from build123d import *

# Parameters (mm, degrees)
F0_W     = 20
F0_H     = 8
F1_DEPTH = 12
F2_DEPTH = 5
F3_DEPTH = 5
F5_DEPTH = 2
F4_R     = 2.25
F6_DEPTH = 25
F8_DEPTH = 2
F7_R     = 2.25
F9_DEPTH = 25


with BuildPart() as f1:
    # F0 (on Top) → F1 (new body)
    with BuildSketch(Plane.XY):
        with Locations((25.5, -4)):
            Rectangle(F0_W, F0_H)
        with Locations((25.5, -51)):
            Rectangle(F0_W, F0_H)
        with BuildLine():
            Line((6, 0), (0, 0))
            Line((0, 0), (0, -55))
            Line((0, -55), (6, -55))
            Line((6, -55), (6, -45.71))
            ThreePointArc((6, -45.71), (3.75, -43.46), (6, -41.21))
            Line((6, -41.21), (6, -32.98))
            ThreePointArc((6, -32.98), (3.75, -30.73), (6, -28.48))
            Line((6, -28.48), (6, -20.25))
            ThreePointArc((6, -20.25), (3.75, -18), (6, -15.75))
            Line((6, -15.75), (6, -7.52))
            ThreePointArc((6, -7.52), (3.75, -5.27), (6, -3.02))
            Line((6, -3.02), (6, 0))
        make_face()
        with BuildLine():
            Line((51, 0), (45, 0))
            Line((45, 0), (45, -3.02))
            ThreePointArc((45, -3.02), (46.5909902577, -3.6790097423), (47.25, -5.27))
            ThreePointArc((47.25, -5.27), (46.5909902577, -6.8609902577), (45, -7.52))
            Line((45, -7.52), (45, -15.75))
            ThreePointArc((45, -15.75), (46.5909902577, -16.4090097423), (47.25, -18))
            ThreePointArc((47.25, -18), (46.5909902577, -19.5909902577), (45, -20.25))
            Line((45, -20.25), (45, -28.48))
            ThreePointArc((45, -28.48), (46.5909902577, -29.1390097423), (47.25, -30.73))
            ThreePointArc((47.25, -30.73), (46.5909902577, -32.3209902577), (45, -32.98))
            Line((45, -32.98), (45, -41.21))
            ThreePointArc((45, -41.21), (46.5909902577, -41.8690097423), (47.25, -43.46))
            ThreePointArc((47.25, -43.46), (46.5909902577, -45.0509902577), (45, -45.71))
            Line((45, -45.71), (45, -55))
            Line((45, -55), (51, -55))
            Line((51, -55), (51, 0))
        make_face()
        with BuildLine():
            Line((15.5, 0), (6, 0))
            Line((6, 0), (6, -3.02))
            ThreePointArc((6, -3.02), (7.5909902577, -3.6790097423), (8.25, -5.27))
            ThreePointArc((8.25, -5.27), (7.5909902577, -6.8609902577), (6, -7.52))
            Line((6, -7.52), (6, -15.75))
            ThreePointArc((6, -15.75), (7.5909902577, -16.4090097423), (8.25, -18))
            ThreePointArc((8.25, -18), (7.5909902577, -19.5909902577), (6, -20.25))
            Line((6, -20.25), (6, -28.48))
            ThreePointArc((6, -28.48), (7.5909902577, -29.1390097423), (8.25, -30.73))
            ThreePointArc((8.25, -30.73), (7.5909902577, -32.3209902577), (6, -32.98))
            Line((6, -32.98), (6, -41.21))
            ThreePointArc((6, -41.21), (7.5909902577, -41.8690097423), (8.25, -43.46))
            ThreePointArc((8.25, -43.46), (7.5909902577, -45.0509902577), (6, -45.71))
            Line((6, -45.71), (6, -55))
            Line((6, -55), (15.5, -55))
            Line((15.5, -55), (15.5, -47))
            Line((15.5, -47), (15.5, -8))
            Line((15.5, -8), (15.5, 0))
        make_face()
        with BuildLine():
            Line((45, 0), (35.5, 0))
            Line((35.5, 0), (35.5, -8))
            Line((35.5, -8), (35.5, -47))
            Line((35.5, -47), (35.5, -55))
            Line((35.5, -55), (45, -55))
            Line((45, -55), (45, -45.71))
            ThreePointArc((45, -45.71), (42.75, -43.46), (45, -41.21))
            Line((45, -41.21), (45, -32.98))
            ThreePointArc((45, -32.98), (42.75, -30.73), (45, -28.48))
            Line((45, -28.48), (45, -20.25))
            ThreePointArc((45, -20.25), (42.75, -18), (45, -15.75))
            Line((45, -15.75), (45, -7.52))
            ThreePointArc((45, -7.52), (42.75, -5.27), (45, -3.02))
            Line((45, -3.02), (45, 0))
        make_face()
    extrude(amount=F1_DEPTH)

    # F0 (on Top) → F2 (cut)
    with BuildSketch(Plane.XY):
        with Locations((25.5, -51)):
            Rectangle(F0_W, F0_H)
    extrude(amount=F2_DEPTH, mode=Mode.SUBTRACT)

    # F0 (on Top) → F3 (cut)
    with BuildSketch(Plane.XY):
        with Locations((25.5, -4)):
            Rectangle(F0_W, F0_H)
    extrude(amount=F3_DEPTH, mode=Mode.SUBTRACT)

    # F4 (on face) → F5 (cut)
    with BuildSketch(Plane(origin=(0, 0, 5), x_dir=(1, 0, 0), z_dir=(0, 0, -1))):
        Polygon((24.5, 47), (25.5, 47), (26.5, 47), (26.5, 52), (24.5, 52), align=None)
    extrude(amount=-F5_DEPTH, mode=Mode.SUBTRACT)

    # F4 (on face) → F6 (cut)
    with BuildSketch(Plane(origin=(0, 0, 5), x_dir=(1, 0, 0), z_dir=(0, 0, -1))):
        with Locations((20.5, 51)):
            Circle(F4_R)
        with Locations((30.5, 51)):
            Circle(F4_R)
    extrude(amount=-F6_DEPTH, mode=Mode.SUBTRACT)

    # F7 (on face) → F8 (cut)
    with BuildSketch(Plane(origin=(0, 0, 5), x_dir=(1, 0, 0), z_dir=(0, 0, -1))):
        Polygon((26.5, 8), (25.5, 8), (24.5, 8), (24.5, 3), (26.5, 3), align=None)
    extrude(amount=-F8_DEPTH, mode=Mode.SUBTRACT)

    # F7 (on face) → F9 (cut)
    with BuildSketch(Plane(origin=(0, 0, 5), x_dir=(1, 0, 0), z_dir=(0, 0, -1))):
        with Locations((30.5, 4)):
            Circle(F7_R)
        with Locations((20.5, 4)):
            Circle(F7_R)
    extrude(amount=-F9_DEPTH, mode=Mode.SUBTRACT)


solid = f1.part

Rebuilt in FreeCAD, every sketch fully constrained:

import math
import FreeCAD as App
import Part
import Sketcher

doc = App.newDocument("Part")
body = doc.addObject("PartDesign::Body", "Body")

sketch1 = body.newObject("Sketcher::SketchObject", "Sketch")
sketch1.AttachmentSupport = (doc.getObject("XY_Plane"), [""])
sketch1.MapMode = "FlatFace"
sketch1.addGeometry([
    Part.LineSegment(App.Vector(0, 0, 0), App.Vector(0, -55, 0)),
    Part.LineSegment(App.Vector(0, -55, 0), App.Vector(51, -55, 0)),
    Part.LineSegment(App.Vector(51, -55, 0), App.Vector(51, 0, 0)),
    Part.LineSegment(App.Vector(51, 0, 0), App.Vector(0, 0, 0)),
    Part.LineSegment(App.Vector(15.5, -8, 0), App.Vector(35.5, -8, 0)),
    Part.LineSegment(App.Vector(35.5, -8, 0), App.Vector(35.5, -47, 0)),
    Part.LineSegment(App.Vector(35.5, -47, 0), App.Vector(15.5, -47, 0)),
    Part.LineSegment(App.Vector(15.5, -47, 0), App.Vector(15.5, -8, 0)),
    Part.ArcOfCircle(Part.Circle(App.Vector(6, -5.3, 0), App.Vector(0, 0, 1), 2.2), math.radians(0), math.radians(90)),
    Part.ArcOfCircle(Part.Circle(App.Vector(6, -5.3, 0), App.Vector(0, 0, 1), 2.2), math.radians(-90), math.radians(0)),
    Part.ArcOfCircle(Part.Circle(App.Vector(6, -5.3, 0), App.Vector(0, 0, 1), 2.2), math.radians(90), math.radians(270)),
    Part.ArcOfCircle(Part.Circle(App.Vector(6, -18, 0), App.Vector(0, 0, 1), 2.2), math.radians(0), math.radians(90)),
    Part.ArcOfCircle(Part.Circle(App.Vector(6, -18, 0), App.Vector(0, 0, 1), 2.2), math.radians(-90), math.radians(0)),
    Part.ArcOfCircle(Part.Circle(App.Vector(6, -18, 0), App.Vector(0, 0, 1), 2.2), math.radians(90), math.radians(270)),
    Part.ArcOfCircle(Part.Circle(App.Vector(6, -30.7, 0), App.Vector(0, 0, 1), 2.2), math.radians(0), math.radians(90)),
    Part.ArcOfCircle(Part.Circle(App.Vector(6, -30.7, 0), App.Vector(0, 0, 1), 2.2), math.radians(-90), math.radians(0)),
    Part.ArcOfCircle(Part.Circle(App.Vector(6, -30.7, 0), App.Vector(0, 0, 1), 2.2), math.radians(90), math.radians(270)),
    Part.ArcOfCircle(Part.Circle(App.Vector(6, -43.5, 0), App.Vector(0, 0, 1), 2.2), math.radians(0), math.radians(90)),
    Part.ArcOfCircle(Part.Circle(App.Vector(6, -43.5, 0), App.Vector(0, 0, 1), 2.2), math.radians(-90), math.radians(0)),
    Part.ArcOfCircle(Part.Circle(App.Vector(6, -43.5, 0), App.Vector(0, 0, 1), 2.2), math.radians(90), math.radians(270)),
    Part.ArcOfCircle(Part.Circle(App.Vector(45, -5.3, 0), App.Vector(0, 0, 1), 2.2), math.radians(90), math.radians(270)),
    Part.ArcOfCircle(Part.Circle(App.Vector(45, -5.3, 0), App.Vector(0, 0, 1), 2.2), math.radians(0), math.radians(90)),
    Part.ArcOfCircle(Part.Circle(App.Vector(45, -5.3, 0), App.Vector(0, 0, 1), 2.2), math.radians(-90), math.radians(0)),
    Part.ArcOfCircle(Part.Circle(App.Vector(45, -43.5, 0), App.Vector(0, 0, 1), 2.2), math.radians(90), math.radians(270)),
    Part.ArcOfCircle(Part.Circle(App.Vector(45, -43.5, 0), App.Vector(0, 0, 1), 2.2), math.radians(0), math.radians(90)),
    Part.ArcOfCircle(Part.Circle(App.Vector(45, -43.5, 0), App.Vector(0, 0, 1), 2.2), math.radians(-90), math.radians(0)),
    Part.ArcOfCircle(Part.Circle(App.Vector(45, -30.7, 0), App.Vector(0, 0, 1), 2.2), math.radians(90), math.radians(270)),
    Part.ArcOfCircle(Part.Circle(App.Vector(45, -30.7, 0), App.Vector(0, 0, 1), 2.2), math.radians(0), math.radians(90)),
    Part.ArcOfCircle(Part.Circle(App.Vector(45, -30.7, 0), App.Vector(0, 0, 1), 2.2), math.radians(-90), math.radians(0)),
    Part.ArcOfCircle(Part.Circle(App.Vector(45, -18, 0), App.Vector(0, 0, 1), 2.2), math.radians(90), math.radians(270)),
    Part.ArcOfCircle(Part.Circle(App.Vector(45, -18, 0), App.Vector(0, 0, 1), 2.2), math.radians(0), math.radians(90)),
    Part.ArcOfCircle(Part.Circle(App.Vector(45, -18, 0), App.Vector(0, 0, 1), 2.2), math.radians(-90), math.radians(0)),
], False)
sketch1.addConstraint([
    Sketcher.Constraint("Coincident", 0, 2, 1, 1),
    Sketcher.Constraint("Coincident", 1, 2, 2, 1),
    Sketcher.Constraint("Coincident", 2, 2, 3, 1),
    Sketcher.Constraint("Coincident", 3, 2, 0, 1),
    Sketcher.Constraint("Coincident", 4, 2, 5, 1),
    Sketcher.Constraint("Coincident", 5, 2, 6, 1),
    Sketcher.Constraint("Coincident", 6, 2, 7, 1),
    Sketcher.Constraint("Coincident", 7, 2, 4, 1),
    Sketcher.Constraint("Tangent", 8, 1, 9, 2),
    Sketcher.Constraint("Tangent", 9, 1, 10, 2),
    Sketcher.Constraint("Tangent", 10, 1, 8, 2),
    Sketcher.Constraint("Tangent", 11, 1, 12, 2),
    Sketcher.Constraint("Tangent", 12, 1, 13, 2),
    Sketcher.Constraint("Tangent", 13, 1, 11, 2),
    Sketcher.Constraint("Tangent", 14, 1, 15, 2),
    Sketcher.Constraint("Tangent", 15, 1, 16, 2),
    Sketcher.Constraint("Tangent", 16, 1, 14, 2),
    Sketcher.Constraint("Tangent", 17, 1, 18, 2),
    Sketcher.Constraint("Tangent", 18, 1, 19, 2),
    Sketcher.Constraint("Tangent", 19, 1, 17, 2),
    Sketcher.Constraint("Tangent", 20, 1, 21, 2),
    Sketcher.Constraint("Tangent", 21, 1, 22, 2),
    Sketcher.Constraint("Tangent", 22, 1, 20, 2),
    Sketcher.Constraint("Tangent", 23, 1, 24, 2),
    Sketcher.Constraint("Tangent", 24, 1, 25, 2),
    Sketcher.Constraint("Tangent", 25, 1, 23, 2),
    Sketcher.Constraint("Tangent", 26, 1, 27, 2),
    Sketcher.Constraint("Tangent", 27, 1, 28, 2),
    Sketcher.Constraint("Tangent", 28, 1, 26, 2),
    Sketcher.Constraint("Tangent", 29, 1, 30, 2),
    Sketcher.Constraint("Tangent", 30, 1, 31, 2),
    Sketcher.Constraint("Tangent", 31, 1, 29, 2),
    Sketcher.Constraint("Vertical", 0),
    Sketcher.Constraint("Horizontal", 1),
    Sketcher.Constraint("Vertical", 2),
    Sketcher.Constraint("Horizontal", 3),
    Sketcher.Constraint("Horizontal", 4),
    Sketcher.Constraint("Vertical", 5),
    Sketcher.Constraint("Horizontal", 6),
    Sketcher.Constraint("Vertical", 7),
    Sketcher.Constraint("Coincident", 3, 2, -1, 1),
    Sketcher.Constraint("Equal", 10, 11),
    Sketcher.Constraint("Equal", 13, 14),
    Sketcher.Constraint("Equal", 16, 17),
    Sketcher.Constraint("Equal", 19, 20),
    Sketcher.Constraint("Equal", 22, 23),
    Sketcher.Constraint("Equal", 25, 26),
    Sketcher.Constraint("Equal", 28, 29),
    Sketcher.Constraint("Horizontal", 10, 3, 20, 3),
    Sketcher.Constraint("Horizontal", 19, 3, 23, 3),
    Sketcher.Constraint("Horizontal", 16, 3, 26, 3),
    Sketcher.Constraint("Horizontal", 13, 3, 29, 3),
    Sketcher.Constraint("Horizontal", 22, 3, 8, 1),
    Sketcher.Constraint("Horizontal", 31, 3, 11, 1),
    Sketcher.Constraint("Horizontal", 28, 3, 14, 1),
    Sketcher.Constraint("Horizontal", 25, 3, 17, 1),
    Sketcher.Constraint("Horizontal", 8, 1, 21, 1),
    Sketcher.Constraint("Horizontal", 17, 1, 24, 1),
    Sketcher.Constraint("Horizontal", 14, 1, 27, 1),
    Sketcher.Constraint("Horizontal", 11, 1, 30, 1),
    Sketcher.Constraint("Vertical", 10, 3, 11, 3),
    Sketcher.Constraint("Vertical", 13, 3, 14, 3),
    Sketcher.Constraint("Vertical", 16, 3, 17, 3),
    Sketcher.Constraint("Vertical", 22, 3, 23, 3),
    Sketcher.Constraint("Vertical", 25, 3, 26, 3),
    Sketcher.Constraint("Vertical", 28, 3, 29, 3),
    Sketcher.Constraint("Vertical", 19, 3, 9, 1),
    Sketcher.Constraint("Vertical", 9, 1, 10, 1),
    Sketcher.Constraint("Vertical", 10, 1, 12, 1),
    Sketcher.Constraint("Vertical", 12, 1, 13, 1),
    Sketcher.Constraint("Vertical", 13, 1, 15, 1),
    Sketcher.Constraint("Vertical", 15, 1, 16, 1),
    Sketcher.Constraint("Vertical", 16, 1, 18, 1),
    Sketcher.Constraint("Vertical", 18, 1, 19, 1),
    Sketcher.Constraint("Vertical", 31, 3, 20, 1),
    Sketcher.Constraint("Vertical", 20, 1, 22, 1),
    Sketcher.Constraint("Vertical", 22, 1, 23, 1),
    Sketcher.Constraint("Vertical", 23, 1, 25, 1),
    Sketcher.Constraint("Vertical", 25, 1, 26, 1),
    Sketcher.Constraint("Vertical", 26, 1, 28, 1),
    Sketcher.Constraint("Vertical", 28, 1, 29, 1),
    Sketcher.Constraint("Vertical", 29, 1, 31, 1),
    Sketcher.Constraint("DistanceX", 1, 1, 1, 2, 51.0),
    Sketcher.Constraint("DistanceX", 4, 1, 4, 2, 20.0),
    Sketcher.Constraint("DistanceY", 0, 2, 0, 1, 55.0),
    Sketcher.Constraint("DistanceY", 5, 2, 5, 1, 39.0),
    Sketcher.Constraint("Radius", 8, 2.25),
    Sketcher.Constraint("DistanceX", -1, 1, 8, 3, 6.0),
    Sketcher.Constraint("DistanceY", 11, 3, -1, 1, 18.0),
    Sketcher.Constraint("DistanceX", -1, 1, 20, 3, 45.0),
    Sketcher.Constraint("DistanceY", 4, 2, -1, 1, 8.0),
    Sketcher.Constraint("DistanceX", -1, 1, 4, 2, 35.5),
    Sketcher.Constraint("DistanceY", 8, 3, -1, 1, 5.27),
    Sketcher.Constraint("DistanceY", 14, 3, -1, 1, 30.73),
    Sketcher.Constraint("DistanceY", 17, 3, -1, 1, 43.46),
])
pad1 = body.newObject("PartDesign::Pad", "Pad")
pad1.Profile = sketch1
pad1.Length = 12

sketch2 = body.newObject("Sketcher::SketchObject", "Sketch001")
sketch2.AttachmentSupport = (doc.getObject("XY_Plane"), [""])
sketch2.MapMode = "FlatFace"
sketch2.addGeometry([
    Part.LineSegment(App.Vector(16, -47, 0), App.Vector(16, -55, 0)),
    Part.LineSegment(App.Vector(16, -55, 0), App.Vector(36, -55, 0)),
    Part.LineSegment(App.Vector(36, -55, 0), App.Vector(36, -47, 0)),
    Part.LineSegment(App.Vector(36, -47, 0), App.Vector(16, -47, 0)),
], False)
sketch2.addConstraint([
    Sketcher.Constraint("Coincident", 0, 2, 1, 1),
    Sketcher.Constraint("Coincident", 1, 2, 2, 1),
    Sketcher.Constraint("Coincident", 2, 2, 3, 1),
    Sketcher.Constraint("Coincident", 3, 2, 0, 1),
    Sketcher.Constraint("Vertical", 0),
    Sketcher.Constraint("Horizontal", 1),
    Sketcher.Constraint("Vertical", 2),
    Sketcher.Constraint("Horizontal", 3),
    Sketcher.Constraint("DistanceX", 1, 1, 1, 2, 20.0),
    Sketcher.Constraint("DistanceY", 0, 2, 0, 1, 8.0),
    Sketcher.Constraint("DistanceY", 0, 2, -1, 1, 55.0),
    Sketcher.Constraint("DistanceX", -1, 1, 0, 2, 15.5),
])
pocket1 = body.newObject("PartDesign::Pocket", "Pocket")
pocket1.Profile = sketch2
pocket1.Length = 5
pocket1.Reversed = True

sketch3 = body.newObject("Sketcher::SketchObject", "Sketch002")
sketch3.AttachmentSupport = (doc.getObject("XY_Plane"), [""])
sketch3.MapMode = "FlatFace"
sketch3.addGeometry([
    Part.LineSegment(App.Vector(16, 0, 0), App.Vector(16, -8, 0)),
    Part.LineSegment(App.Vector(16, -8, 0), App.Vector(36, -8, 0)),
    Part.LineSegment(App.Vector(36, -8, 0), App.Vector(36, 0, 0)),
    Part.LineSegment(App.Vector(36, 0, 0), App.Vector(16, 0, 0)),
], False)
sketch3.addConstraint([
    Sketcher.Constraint("Coincident", 0, 2, 1, 1),
    Sketcher.Constraint("Coincident", 1, 2, 2, 1),
    Sketcher.Constraint("Coincident", 2, 2, 3, 1),
    Sketcher.Constraint("Coincident", 3, 2, 0, 1),
    Sketcher.Constraint("Vertical", 0),
    Sketcher.Constraint("Horizontal", 1),
    Sketcher.Constraint("Vertical", 2),
    Sketcher.Constraint("Horizontal", 3),
    Sketcher.Constraint("PointOnObject", 2, 2, -1),
    Sketcher.Constraint("DistanceX", 1, 1, 1, 2, 20.0),
    Sketcher.Constraint("DistanceY", 0, 2, 0, 1, 8.0),
    Sketcher.Constraint("DistanceX", -1, 1, 0, 2, 15.5),
])
pocket2 = body.newObject("PartDesign::Pocket", "Pocket001")
pocket2.Profile = sketch3
pocket2.Length = 5
pocket2.Reversed = True

sketch4 = body.newObject("Sketcher::SketchObject", "Sketch003")
sketch4.AttachmentSupport = (doc.getObject("XY_Plane"), [""])
sketch4.MapMode = "FlatFace"
sketch4.AttachmentOffset = App.Placement(App.Vector(0, 0, 5), App.Rotation())
sketch4.addGeometry([
    Part.LineSegment(App.Vector(24.5, -47, 0), App.Vector(26.5, -47, 0)),
    Part.LineSegment(App.Vector(26.5, -47, 0), App.Vector(26.5, -52, 0)),
    Part.LineSegment(App.Vector(26.5, -52, 0), App.Vector(24.5, -52, 0)),
    Part.LineSegment(App.Vector(24.5, -52, 0), App.Vector(24.5, -47, 0)),
], False)
sketch4.addConstraint([
    Sketcher.Constraint("Coincident", 0, 2, 1, 1),
    Sketcher.Constraint("Coincident", 1, 2, 2, 1),
    Sketcher.Constraint("Coincident", 2, 2, 3, 1),
    Sketcher.Constraint("Coincident", 3, 2, 0, 1),
    Sketcher.Constraint("Horizontal", 0),
    Sketcher.Constraint("Vertical", 1),
    Sketcher.Constraint("Horizontal", 2),
    Sketcher.Constraint("Vertical", 3),
    Sketcher.Constraint("DistanceX", 0, 1, 0, 2, 2.0),
    Sketcher.Constraint("DistanceY", 1, 2, 1, 1, 5.0),
    Sketcher.Constraint("DistanceY", 0, 2, -1, 1, 47.0),
    Sketcher.Constraint("DistanceX", -1, 1, 0, 2, 26.5),
])
pocket3 = body.newObject("PartDesign::Pocket", "Pocket002")
pocket3.Profile = sketch4
pocket3.Length = 2
pocket3.Reversed = True

sketch5 = body.newObject("Sketcher::SketchObject", "Sketch004")
sketch5.AttachmentSupport = (doc.getObject("XY_Plane"), [""])
sketch5.MapMode = "FlatFace"
sketch5.AttachmentOffset = App.Placement(App.Vector(0, 0, 5), App.Rotation())
sketch5.addGeometry([
    Part.Circle(App.Vector(20.5, -51, 0), App.Vector(0, 0, 1), 2.2),
    Part.Circle(App.Vector(30.5, -51, 0), App.Vector(0, 0, 1), 2.2),
], False)
sketch5.addConstraint([
    Sketcher.Constraint("Equal", 0, 1),
    Sketcher.Constraint("Horizontal", 0, 3, 1, 3),
    Sketcher.Constraint("Diameter", 0, 4.5),
    Sketcher.Constraint("DistanceY", 0, 3, -1, 1, 51.0),
    Sketcher.Constraint("DistanceX", 0, 3, 1, 3, 10.0),
    Sketcher.Constraint("DistanceX", -1, 1, 0, 3, 20.5),
])
pocket4 = body.newObject("PartDesign::Pocket", "Pocket003")
pocket4.Profile = sketch5
pocket4.Length = 25
pocket4.Reversed = True

sketch6 = body.newObject("Sketcher::SketchObject", "Sketch005")
sketch6.AttachmentSupport = (doc.getObject("XY_Plane"), [""])
sketch6.MapMode = "FlatFace"
sketch6.AttachmentOffset = App.Placement(App.Vector(0, 0, 5), App.Rotation())
sketch6.addGeometry([
    Part.LineSegment(App.Vector(26.5, -8, 0), App.Vector(24.5, -8, 0)),
    Part.LineSegment(App.Vector(24.5, -8, 0), App.Vector(24.5, -3, 0)),
    Part.LineSegment(App.Vector(24.5, -3, 0), App.Vector(26.5, -3, 0)),
    Part.LineSegment(App.Vector(26.5, -3, 0), App.Vector(26.5, -8, 0)),
], False)
sketch6.addConstraint([
    Sketcher.Constraint("Coincident", 0, 2, 1, 1),
    Sketcher.Constraint("Coincident", 1, 2, 2, 1),
    Sketcher.Constraint("Coincident", 2, 2, 3, 1),
    Sketcher.Constraint("Coincident", 3, 2, 0, 1),
    Sketcher.Constraint("Horizontal", 0),
    Sketcher.Constraint("Vertical", 1),
    Sketcher.Constraint("Horizontal", 2),
    Sketcher.Constraint("Vertical", 3),
    Sketcher.Constraint("DistanceX", 0, 2, 0, 1, 2.0),
    Sketcher.Constraint("DistanceY", 1, 1, 1, 2, 5.0),
    Sketcher.Constraint("DistanceY", 0, 2, -1, 1, 8.0),
    Sketcher.Constraint("DistanceX", -1, 1, 0, 2, 24.5),
])
pocket5 = body.newObject("PartDesign::Pocket", "Pocket004")
pocket5.Profile = sketch6
pocket5.Length = 2
pocket5.Reversed = True

sketch7 = body.newObject("Sketcher::SketchObject", "Sketch006")
sketch7.AttachmentSupport = (doc.getObject("XY_Plane"), [""])
sketch7.MapMode = "FlatFace"
sketch7.AttachmentOffset = App.Placement(App.Vector(0, 0, 5), App.Rotation())
sketch7.addGeometry([
    Part.Circle(App.Vector(30.5, -4, 0), App.Vector(0, 0, 1), 2.2),
    Part.Circle(App.Vector(20.5, -4, 0), App.Vector(0, 0, 1), 2.2),
], False)
sketch7.addConstraint([
    Sketcher.Constraint("Equal", 0, 1),
    Sketcher.Constraint("Horizontal", 0, 3, 1, 3),
    Sketcher.Constraint("Diameter", 0, 4.5),
    Sketcher.Constraint("DistanceY", 0, 3, -1, 1, 4.0),
    Sketcher.Constraint("DistanceX", 1, 3, 0, 3, 10.0),
    Sketcher.Constraint("DistanceX", -1, 1, 0, 3, 30.5),
])
pocket6 = body.newObject("PartDesign::Pocket", "Pocket005")
pocket6.Profile = sketch7
pocket6.Length = 25
pocket6.Reversed = True

doc.recompute()
